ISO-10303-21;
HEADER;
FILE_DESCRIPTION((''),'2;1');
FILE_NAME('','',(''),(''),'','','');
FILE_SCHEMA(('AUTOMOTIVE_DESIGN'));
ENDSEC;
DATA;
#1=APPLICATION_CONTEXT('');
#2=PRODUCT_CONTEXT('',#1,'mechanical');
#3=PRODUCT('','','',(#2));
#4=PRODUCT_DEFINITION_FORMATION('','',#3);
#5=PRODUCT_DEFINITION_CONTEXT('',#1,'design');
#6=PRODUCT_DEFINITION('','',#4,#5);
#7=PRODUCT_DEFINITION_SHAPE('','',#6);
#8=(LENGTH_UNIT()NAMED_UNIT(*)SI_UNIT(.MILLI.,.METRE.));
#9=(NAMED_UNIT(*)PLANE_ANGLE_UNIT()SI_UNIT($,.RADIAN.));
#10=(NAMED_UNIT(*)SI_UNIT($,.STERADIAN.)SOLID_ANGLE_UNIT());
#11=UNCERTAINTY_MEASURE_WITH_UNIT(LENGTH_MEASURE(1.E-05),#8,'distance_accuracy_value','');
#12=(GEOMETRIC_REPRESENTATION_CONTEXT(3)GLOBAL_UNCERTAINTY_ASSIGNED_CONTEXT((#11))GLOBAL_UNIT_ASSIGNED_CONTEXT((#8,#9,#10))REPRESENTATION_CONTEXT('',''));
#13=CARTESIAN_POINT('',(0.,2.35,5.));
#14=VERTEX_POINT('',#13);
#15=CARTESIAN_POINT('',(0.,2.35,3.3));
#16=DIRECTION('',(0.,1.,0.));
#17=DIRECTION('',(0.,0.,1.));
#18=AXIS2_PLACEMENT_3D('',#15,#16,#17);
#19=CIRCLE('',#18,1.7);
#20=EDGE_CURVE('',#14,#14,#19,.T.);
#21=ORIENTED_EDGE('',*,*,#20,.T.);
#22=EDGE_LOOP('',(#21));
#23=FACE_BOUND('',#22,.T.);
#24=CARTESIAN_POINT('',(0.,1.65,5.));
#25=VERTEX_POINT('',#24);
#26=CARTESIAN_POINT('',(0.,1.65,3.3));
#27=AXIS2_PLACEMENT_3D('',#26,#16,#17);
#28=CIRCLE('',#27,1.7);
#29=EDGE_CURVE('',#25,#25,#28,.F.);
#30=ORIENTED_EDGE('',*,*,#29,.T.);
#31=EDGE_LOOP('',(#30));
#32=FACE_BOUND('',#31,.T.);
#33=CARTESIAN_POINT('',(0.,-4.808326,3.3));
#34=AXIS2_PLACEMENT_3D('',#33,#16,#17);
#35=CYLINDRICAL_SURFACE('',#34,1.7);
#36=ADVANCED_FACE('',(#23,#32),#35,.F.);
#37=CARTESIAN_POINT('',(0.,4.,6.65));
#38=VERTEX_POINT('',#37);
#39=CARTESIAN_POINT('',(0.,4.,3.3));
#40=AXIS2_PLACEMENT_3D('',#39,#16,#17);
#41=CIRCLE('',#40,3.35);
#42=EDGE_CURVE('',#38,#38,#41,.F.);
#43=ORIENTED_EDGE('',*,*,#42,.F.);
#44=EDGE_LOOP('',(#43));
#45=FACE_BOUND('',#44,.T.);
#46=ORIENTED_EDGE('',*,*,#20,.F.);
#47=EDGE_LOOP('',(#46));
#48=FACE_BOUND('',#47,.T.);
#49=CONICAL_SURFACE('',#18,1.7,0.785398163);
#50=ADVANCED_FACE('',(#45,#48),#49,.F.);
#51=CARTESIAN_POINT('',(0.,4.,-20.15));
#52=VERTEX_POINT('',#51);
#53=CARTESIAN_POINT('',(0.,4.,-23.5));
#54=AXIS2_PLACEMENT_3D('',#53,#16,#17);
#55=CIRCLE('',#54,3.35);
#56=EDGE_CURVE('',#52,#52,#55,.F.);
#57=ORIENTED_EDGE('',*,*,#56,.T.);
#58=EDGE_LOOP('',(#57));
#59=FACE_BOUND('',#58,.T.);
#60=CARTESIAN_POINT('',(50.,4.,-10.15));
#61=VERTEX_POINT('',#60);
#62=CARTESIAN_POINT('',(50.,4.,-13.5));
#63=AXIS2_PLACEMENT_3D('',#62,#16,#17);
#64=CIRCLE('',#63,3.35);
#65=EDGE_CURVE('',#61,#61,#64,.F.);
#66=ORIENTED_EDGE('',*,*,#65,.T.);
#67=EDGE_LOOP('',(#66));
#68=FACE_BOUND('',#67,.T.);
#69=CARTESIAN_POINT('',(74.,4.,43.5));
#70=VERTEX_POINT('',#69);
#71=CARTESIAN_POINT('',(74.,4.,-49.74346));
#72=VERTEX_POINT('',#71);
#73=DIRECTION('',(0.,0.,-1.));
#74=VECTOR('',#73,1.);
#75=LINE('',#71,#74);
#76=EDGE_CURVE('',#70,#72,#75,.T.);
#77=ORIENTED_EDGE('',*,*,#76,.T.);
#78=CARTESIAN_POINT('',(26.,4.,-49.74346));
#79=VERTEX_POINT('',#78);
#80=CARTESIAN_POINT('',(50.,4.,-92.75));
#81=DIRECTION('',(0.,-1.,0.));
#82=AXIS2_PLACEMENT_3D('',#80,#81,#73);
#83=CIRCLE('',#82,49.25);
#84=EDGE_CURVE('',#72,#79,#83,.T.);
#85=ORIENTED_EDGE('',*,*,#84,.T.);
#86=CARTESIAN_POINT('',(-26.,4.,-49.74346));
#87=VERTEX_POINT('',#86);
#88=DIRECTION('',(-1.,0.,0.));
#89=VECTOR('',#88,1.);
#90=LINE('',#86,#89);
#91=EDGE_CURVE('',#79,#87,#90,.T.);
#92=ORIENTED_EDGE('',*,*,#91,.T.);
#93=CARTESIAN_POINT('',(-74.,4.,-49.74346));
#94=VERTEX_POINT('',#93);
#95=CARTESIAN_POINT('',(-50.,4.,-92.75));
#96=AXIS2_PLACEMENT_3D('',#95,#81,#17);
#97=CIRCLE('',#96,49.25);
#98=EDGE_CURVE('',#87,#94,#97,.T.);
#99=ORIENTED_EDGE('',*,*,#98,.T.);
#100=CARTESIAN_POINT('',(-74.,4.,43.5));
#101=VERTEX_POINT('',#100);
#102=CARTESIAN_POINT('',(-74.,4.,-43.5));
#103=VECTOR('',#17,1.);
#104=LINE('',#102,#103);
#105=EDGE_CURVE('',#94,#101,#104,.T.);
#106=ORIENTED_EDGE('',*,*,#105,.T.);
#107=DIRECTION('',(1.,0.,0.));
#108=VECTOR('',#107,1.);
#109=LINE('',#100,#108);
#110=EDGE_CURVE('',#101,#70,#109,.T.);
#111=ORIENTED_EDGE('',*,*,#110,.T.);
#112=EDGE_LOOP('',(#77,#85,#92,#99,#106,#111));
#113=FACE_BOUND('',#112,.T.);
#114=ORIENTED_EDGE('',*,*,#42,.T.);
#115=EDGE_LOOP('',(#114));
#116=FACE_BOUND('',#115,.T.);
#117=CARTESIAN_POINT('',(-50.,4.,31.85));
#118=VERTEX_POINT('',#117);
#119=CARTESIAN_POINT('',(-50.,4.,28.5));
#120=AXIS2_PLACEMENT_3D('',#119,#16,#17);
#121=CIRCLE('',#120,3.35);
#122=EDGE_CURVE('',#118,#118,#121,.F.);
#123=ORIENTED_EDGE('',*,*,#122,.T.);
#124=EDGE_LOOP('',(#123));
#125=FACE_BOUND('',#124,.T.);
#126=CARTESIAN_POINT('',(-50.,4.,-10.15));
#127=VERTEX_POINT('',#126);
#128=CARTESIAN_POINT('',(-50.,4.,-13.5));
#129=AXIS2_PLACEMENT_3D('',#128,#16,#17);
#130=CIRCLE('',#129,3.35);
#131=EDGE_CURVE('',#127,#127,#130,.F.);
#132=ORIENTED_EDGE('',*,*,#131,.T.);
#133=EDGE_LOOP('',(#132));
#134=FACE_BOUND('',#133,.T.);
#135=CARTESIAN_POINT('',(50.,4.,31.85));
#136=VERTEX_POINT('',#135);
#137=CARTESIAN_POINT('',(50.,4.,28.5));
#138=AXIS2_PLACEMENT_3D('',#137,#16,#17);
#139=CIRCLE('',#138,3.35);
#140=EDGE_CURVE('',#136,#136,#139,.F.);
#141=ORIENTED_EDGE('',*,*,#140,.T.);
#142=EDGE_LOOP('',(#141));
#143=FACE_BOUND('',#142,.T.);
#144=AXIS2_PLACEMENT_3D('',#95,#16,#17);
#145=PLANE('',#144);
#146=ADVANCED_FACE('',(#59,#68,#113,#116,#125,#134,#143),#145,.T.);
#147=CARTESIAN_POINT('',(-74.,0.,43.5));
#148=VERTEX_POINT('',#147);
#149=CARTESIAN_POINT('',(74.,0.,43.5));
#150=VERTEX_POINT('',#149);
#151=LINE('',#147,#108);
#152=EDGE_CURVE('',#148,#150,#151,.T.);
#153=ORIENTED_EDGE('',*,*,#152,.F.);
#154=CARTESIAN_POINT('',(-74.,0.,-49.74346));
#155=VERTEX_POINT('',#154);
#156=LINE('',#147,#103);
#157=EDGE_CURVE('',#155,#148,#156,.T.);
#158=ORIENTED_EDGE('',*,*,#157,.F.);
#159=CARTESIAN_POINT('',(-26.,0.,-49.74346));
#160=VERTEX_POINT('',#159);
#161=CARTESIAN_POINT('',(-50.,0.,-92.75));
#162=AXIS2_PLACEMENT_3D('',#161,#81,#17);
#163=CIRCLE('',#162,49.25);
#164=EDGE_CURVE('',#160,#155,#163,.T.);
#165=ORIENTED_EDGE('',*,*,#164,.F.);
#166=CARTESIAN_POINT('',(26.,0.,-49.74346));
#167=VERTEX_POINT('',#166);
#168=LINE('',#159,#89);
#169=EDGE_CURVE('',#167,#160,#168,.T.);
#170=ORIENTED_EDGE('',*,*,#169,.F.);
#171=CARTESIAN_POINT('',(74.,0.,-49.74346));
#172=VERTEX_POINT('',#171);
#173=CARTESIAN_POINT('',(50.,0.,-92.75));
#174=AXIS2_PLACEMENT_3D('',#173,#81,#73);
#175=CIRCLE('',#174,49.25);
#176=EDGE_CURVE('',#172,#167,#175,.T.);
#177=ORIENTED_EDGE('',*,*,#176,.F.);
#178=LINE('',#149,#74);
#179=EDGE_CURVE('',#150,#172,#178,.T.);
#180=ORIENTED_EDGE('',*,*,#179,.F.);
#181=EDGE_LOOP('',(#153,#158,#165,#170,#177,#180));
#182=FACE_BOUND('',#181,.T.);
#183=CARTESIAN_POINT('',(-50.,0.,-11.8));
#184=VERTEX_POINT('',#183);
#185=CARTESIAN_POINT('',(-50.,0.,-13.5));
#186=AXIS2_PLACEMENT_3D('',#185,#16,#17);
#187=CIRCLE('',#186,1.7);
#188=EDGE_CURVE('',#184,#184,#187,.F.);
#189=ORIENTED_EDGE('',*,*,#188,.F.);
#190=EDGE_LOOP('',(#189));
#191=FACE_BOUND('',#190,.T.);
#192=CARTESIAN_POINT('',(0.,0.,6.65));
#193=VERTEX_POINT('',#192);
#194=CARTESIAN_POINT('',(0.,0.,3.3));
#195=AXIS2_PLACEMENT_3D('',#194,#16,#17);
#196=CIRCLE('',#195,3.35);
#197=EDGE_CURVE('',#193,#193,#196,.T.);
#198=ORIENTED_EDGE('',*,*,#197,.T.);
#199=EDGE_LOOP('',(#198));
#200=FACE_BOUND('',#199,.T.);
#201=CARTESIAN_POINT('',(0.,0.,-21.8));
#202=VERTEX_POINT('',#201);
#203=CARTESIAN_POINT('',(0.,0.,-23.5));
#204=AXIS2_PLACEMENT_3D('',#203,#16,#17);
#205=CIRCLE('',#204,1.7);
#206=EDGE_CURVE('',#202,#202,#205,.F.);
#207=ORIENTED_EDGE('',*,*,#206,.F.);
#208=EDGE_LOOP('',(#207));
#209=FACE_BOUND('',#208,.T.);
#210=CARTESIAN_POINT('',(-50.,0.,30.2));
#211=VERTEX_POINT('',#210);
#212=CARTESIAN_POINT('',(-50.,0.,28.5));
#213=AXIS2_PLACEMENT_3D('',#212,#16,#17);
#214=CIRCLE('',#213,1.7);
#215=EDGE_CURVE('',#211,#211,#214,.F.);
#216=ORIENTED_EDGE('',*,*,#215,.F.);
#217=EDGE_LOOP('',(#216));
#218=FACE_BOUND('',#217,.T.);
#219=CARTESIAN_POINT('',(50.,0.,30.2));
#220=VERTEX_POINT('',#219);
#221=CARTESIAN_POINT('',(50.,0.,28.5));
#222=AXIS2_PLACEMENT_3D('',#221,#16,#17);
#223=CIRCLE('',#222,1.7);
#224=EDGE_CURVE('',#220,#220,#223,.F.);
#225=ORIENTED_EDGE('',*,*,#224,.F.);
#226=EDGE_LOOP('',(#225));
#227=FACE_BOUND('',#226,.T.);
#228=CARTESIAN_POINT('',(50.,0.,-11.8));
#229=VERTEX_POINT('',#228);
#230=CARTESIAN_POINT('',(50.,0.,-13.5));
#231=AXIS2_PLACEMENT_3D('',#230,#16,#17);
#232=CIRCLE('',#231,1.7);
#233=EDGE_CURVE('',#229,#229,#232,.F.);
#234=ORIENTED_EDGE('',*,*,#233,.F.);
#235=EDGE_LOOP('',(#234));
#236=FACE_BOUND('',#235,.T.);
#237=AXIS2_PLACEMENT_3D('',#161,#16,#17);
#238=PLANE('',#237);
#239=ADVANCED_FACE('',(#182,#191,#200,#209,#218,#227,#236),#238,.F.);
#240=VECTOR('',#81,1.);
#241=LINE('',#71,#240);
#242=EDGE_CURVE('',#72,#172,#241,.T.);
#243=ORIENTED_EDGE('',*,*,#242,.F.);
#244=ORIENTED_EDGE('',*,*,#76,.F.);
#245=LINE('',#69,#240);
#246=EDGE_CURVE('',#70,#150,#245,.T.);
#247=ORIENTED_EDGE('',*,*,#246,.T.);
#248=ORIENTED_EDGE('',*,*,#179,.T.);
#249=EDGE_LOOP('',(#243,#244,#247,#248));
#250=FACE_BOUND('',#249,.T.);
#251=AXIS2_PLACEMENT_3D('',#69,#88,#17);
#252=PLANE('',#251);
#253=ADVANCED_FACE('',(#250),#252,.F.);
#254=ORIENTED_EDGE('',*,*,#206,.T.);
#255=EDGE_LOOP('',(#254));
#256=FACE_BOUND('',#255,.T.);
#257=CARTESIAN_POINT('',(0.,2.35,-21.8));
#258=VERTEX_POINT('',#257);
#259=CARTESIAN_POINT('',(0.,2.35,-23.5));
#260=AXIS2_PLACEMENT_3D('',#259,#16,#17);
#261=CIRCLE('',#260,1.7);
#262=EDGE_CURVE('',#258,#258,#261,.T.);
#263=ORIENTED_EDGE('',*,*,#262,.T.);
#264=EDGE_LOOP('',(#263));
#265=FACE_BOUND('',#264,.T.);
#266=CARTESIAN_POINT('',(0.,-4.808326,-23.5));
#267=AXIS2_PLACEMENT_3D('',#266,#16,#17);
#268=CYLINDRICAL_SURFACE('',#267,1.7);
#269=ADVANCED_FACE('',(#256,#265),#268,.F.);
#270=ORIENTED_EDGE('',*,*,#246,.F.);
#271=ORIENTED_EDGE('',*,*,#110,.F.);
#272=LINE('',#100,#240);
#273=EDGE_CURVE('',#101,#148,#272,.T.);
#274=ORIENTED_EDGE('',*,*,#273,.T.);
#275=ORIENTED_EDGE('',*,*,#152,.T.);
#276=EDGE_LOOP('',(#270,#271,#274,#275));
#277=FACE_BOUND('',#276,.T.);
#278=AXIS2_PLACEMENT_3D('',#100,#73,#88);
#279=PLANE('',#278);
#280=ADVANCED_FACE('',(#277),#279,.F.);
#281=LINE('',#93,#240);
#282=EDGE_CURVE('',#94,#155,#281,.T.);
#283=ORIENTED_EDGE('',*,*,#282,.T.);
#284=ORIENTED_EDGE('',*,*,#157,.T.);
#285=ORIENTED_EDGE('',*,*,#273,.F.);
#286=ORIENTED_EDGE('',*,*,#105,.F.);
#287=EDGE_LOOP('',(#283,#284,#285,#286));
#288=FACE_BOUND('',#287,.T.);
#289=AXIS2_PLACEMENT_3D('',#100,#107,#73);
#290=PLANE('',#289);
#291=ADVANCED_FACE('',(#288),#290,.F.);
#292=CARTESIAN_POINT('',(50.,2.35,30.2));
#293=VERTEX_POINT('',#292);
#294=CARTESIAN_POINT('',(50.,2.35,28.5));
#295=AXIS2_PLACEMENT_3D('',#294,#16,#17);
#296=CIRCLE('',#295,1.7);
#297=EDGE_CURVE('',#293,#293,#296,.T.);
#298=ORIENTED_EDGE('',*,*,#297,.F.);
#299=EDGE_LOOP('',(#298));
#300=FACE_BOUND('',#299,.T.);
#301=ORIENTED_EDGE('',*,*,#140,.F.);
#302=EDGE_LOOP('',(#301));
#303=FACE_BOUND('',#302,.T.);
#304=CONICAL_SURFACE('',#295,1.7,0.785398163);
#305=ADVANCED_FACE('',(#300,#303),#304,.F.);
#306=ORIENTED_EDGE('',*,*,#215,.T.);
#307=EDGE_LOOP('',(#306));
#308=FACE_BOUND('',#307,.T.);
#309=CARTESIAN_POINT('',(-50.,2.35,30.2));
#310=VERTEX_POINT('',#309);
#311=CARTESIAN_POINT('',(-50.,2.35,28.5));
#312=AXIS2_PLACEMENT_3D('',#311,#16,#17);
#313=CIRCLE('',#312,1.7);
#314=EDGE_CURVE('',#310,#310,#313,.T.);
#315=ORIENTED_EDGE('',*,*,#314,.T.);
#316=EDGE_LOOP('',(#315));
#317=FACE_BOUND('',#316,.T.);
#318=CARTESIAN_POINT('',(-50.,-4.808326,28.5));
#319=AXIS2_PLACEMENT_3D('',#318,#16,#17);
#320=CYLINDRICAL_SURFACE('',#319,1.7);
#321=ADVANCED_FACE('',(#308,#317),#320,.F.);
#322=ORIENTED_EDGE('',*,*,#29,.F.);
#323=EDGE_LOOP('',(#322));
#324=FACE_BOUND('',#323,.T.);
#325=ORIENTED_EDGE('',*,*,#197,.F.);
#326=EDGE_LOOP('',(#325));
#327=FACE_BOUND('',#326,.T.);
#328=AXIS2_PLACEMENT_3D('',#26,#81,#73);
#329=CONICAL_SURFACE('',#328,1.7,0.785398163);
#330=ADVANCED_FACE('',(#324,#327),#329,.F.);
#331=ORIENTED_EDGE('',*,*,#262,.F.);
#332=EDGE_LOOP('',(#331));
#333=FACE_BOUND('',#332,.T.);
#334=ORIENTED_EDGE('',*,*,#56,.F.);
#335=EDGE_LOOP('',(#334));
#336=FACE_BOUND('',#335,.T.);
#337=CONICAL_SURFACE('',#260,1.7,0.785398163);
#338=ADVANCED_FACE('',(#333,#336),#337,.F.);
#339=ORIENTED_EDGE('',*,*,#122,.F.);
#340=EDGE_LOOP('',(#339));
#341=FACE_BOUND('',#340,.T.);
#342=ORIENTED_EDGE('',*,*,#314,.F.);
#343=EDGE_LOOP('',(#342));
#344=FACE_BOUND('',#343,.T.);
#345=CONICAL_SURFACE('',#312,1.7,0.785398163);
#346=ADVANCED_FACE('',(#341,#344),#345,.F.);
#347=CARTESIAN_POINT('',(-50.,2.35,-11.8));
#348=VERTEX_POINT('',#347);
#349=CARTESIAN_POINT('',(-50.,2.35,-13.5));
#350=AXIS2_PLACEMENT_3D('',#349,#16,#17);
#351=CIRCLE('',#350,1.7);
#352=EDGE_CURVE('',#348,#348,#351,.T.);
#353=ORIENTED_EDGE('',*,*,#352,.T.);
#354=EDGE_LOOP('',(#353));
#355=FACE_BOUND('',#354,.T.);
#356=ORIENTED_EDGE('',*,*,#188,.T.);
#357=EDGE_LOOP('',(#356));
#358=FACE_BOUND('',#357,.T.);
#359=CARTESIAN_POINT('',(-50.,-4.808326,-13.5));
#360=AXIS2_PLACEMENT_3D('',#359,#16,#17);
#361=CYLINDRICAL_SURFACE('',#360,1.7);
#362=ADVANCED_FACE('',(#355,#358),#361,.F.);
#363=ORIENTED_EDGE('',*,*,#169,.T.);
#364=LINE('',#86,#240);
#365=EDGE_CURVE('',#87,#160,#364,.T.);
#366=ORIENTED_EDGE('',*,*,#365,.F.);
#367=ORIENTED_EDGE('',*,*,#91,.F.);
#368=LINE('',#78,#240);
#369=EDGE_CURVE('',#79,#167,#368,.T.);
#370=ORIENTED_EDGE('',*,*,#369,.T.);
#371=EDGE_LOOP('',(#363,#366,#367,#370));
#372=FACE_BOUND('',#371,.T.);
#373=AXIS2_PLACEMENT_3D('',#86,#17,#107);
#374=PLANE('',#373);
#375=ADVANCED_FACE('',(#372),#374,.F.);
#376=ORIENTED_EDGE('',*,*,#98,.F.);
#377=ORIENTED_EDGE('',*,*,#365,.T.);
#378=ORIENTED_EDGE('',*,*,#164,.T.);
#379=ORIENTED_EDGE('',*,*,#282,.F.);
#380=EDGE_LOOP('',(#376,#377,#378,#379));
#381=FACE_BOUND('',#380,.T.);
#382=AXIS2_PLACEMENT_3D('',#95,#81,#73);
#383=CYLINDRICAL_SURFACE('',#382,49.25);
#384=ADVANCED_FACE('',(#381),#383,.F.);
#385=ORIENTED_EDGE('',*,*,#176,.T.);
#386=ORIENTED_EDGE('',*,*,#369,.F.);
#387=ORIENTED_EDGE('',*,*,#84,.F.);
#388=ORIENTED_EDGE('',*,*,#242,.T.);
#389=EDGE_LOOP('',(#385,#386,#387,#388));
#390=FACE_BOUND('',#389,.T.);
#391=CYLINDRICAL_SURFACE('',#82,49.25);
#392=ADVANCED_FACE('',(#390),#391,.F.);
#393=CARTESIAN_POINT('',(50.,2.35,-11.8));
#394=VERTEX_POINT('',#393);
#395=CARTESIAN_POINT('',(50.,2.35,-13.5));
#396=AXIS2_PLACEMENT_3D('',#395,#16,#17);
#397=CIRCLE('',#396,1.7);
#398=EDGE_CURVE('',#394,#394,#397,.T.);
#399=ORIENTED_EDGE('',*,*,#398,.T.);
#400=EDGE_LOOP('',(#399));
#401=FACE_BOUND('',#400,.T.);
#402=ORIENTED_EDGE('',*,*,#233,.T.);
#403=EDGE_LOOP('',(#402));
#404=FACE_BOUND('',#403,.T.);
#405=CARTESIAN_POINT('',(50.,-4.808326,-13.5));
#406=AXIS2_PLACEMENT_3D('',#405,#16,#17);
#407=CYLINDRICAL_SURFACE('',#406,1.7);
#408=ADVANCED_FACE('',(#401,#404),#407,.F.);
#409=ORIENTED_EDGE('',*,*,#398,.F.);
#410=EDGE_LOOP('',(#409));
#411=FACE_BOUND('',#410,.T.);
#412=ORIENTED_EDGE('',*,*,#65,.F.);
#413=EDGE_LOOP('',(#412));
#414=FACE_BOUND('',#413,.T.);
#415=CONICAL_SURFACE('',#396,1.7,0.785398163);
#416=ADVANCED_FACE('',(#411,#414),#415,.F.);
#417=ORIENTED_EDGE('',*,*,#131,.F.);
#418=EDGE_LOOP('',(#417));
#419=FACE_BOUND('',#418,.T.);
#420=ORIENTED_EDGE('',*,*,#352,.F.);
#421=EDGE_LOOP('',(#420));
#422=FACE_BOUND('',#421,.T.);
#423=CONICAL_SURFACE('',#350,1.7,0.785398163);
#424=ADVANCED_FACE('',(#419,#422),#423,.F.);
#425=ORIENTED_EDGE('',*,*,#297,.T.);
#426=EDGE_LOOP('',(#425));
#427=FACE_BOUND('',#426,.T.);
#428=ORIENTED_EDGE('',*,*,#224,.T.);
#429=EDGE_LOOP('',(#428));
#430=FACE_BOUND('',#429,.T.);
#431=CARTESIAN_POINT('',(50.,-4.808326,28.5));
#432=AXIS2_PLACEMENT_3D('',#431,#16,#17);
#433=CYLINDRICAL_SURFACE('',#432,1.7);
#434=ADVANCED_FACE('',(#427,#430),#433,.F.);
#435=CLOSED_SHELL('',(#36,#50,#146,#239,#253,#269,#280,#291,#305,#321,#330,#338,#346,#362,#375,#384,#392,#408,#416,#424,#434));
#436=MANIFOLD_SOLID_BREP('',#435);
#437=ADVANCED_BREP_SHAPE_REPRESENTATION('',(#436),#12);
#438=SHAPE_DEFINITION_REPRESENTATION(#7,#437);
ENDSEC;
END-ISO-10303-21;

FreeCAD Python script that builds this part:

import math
import FreeCAD as App
import Part
import Sketcher

V = App.Vector


def edges_at(feature, points):
    """Names of the edges that pass closest to the given points."""
    edges = feature.Shape.Edges
    near = lambda p: min(range(len(edges)), key=lambda i: edges[i].distToShape(Part.Vertex(*p))[0])
    return sorted({f"Edge{near(p) + 1}" for p in points})

doc = App.newDocument("Part")
body = doc.addObject("PartDesign::Body", "Body")

# Sketch on XZ plane
sketch1 = body.newObject("Sketcher::SketchObject", "Sketch")
sketch1.AttachmentSupport = (doc.getObject("XZ_Plane"), [""])
sketch1.MapMode = "FlatFace"
sketch1.addGeometry(Part.ArcOfCircle(Part.Circle(V(-50, -93, 0), V(0, 0, 1), 49), math.radians(61), math.radians(119)), False)
sketch1.addGeometry(Part.LineSegment(V(-74, -50, 0), V(-74, 44, 0)), False)
sketch1.addGeometry(Part.LineSegment(V(-74, 44, 0), V(74, 44, 0)), False)
sketch1.addGeometry(Part.LineSegment(V(74, 44, 0), V(74, -50, 0)), False)
sketch1.addGeometry(Part.ArcOfCircle(Part.Circle(V(50, -93, 0), V(0, 0, 1), 49), math.radians(61), math.radians(119)), False)
sketch1.addGeometry(Part.LineSegment(V(26, -50, 0), V(-26, -50, 0)), False)
sketch1.addConstraint(Sketcher.Constraint("Coincident", 0, 2, 1, 1))
sketch1.addConstraint(Sketcher.Constraint("Coincident", 1, 2, 2, 1))
sketch1.addConstraint(Sketcher.Constraint("Coincident", 2, 2, 3, 1))
sketch1.addConstraint(Sketcher.Constraint("Coincident", 3, 2, 4, 1))
sketch1.addConstraint(Sketcher.Constraint("Coincident", 4, 2, 5, 1))
sketch1.addConstraint(Sketcher.Constraint("Coincident", 5, 2, 0, 1))
sketch1.addConstraint(Sketcher.Constraint("Vertical", 1))
sketch1.addConstraint(Sketcher.Constraint("Horizontal", 2))
sketch1.addConstraint(Sketcher.Constraint("Vertical", 3))
sketch1.addConstraint(Sketcher.Constraint("Horizontal", 5))
sketch1.addConstraint(Sketcher.Constraint("Equal", 0, 4))
sketch1.addConstraint(Sketcher.Constraint("Symmetric", 0, 3, 4, 3, -2))
sketch1.addConstraint(Sketcher.Constraint("Horizontal", 0, 2, 3, 2))
sketch1.addConstraint(Sketcher.Constraint("Horizontal", 3, 2, 4, 2))
sketch1.addConstraint(Sketcher.Constraint("DistanceX", 2, 1, 2, 2, 148.0))
sketch1.addConstraint(Sketcher.Constraint("DistanceX", 5, 2, 5, 1, 52.0))
sketch1.addConstraint(Sketcher.Constraint("Radius", 0, 49.25))
sketch1.addConstraint(Sketcher.Constraint("DistanceY", -1, 1, 1, 2, 43.5))
sketch1.addConstraint(Sketcher.Constraint("DistanceY", 0, 3, -1, 1, 92.75))
pad1 = body.newObject("PartDesign::Pad", "Pad")
pad1.Profile = sketch1
pad1.Length = 4
pad1.Reversed = True

# Sketch on XZ plane
sketch2 = body.newObject("Sketcher::SketchObject", "Sketch001")
sketch2.AttachmentSupport = (doc.getObject("XZ_Plane"), [""])
sketch2.MapMode = "FlatFace"
sketch2.AttachmentOffset = App.Placement(V(0, 0, -4), App.Rotation())
sketch2.addGeometry(Part.Circle(V(-50, 28.5, 0), V(0, 0, 1), 1.7), False)
sketch2.addGeometry(Part.Circle(V(-50, -13.5, 0), V(0, 0, 1), 1.7), False)
sketch2.addGeometry(Part.Circle(V(0, 3.3, 0), V(0, 0, 1), 1.7), False)
sketch2.addGeometry(Part.Circle(V(0, -23.5, 0), V(0, 0, 1), 1.7), False)
sketch2.addGeometry(Part.Circle(V(50, 28.5, 0), V(0, 0, 1), 1.7), False)
sketch2.addGeometry(Part.Circle(V(50, -13.5, 0), V(0, 0, 1), 1.7), False)
sketch2.addConstraint(Sketcher.Constraint("Equal", 0, 1))
sketch2.addConstraint(Sketcher.Constraint("Equal", 1, 2))
sketch2.addConstraint(Sketcher.Constraint("Equal", 2, 3))
sketch2.addConstraint(Sketcher.Constraint("Equal", 3, 4))
sketch2.addConstraint(Sketcher.Constraint("Equal", 4, 5))
sketch2.addConstraint(Sketcher.Constraint("Symmetric", 0, 3, 4, 3, -2))
sketch2.addConstraint(Sketcher.Constraint("Symmetric", 1, 3, 5, 3, -2))
sketch2.addConstraint(Sketcher.Constraint("PointOnObject", 2, 3, -2))
sketch2.addConstraint(Sketcher.Constraint("PointOnObject", 3, 3, -2))
sketch2.addConstraint(Sketcher.Constraint("Vertical", 0, 3, 1, 3))
sketch2.addConstraint(Sketcher.Constraint("Diameter", 0, 3.4))
sketch2.addConstraint(Sketcher.Constraint("DistanceX", 0, 3, -1, 1, 50.0))
sketch2.addConstraint(Sketcher.Constraint("DistanceY", 1, 3, 0, 3, 42.0))
sketch2.addConstraint(Sketcher.Constraint("DistanceY", 3, 3, 1, 3, 10.0))
sketch2.addConstraint(Sketcher.Constraint("DistanceY", -1, 1, 0, 3, 28.5))
sketch2.addConstraint(Sketcher.Constraint("DistanceY", -1, 1, 2, 3, 3.3))
pocket1 = body.newObject("PartDesign::Pocket", "Pocket")
pocket1.Profile = sketch2
pocket1.Length = 4
pocket1.Reversed = True
doc.recompute()

chamfer = body.newObject("PartDesign::Chamfer", "Chamfer")
chamfer.Base = (pocket1, edges_at(pocket1, [
    (50, 4, 26.8),
    (0, 4, -25.2),
    (0, 4, 1.6),
    (0, 0, 1.6),
    (-50, 4, -15.2),
    (50, 4, -15.2),
    (-50, 4, 26.8),
]))
chamfer.Size = 1.65

doc.recompute()
